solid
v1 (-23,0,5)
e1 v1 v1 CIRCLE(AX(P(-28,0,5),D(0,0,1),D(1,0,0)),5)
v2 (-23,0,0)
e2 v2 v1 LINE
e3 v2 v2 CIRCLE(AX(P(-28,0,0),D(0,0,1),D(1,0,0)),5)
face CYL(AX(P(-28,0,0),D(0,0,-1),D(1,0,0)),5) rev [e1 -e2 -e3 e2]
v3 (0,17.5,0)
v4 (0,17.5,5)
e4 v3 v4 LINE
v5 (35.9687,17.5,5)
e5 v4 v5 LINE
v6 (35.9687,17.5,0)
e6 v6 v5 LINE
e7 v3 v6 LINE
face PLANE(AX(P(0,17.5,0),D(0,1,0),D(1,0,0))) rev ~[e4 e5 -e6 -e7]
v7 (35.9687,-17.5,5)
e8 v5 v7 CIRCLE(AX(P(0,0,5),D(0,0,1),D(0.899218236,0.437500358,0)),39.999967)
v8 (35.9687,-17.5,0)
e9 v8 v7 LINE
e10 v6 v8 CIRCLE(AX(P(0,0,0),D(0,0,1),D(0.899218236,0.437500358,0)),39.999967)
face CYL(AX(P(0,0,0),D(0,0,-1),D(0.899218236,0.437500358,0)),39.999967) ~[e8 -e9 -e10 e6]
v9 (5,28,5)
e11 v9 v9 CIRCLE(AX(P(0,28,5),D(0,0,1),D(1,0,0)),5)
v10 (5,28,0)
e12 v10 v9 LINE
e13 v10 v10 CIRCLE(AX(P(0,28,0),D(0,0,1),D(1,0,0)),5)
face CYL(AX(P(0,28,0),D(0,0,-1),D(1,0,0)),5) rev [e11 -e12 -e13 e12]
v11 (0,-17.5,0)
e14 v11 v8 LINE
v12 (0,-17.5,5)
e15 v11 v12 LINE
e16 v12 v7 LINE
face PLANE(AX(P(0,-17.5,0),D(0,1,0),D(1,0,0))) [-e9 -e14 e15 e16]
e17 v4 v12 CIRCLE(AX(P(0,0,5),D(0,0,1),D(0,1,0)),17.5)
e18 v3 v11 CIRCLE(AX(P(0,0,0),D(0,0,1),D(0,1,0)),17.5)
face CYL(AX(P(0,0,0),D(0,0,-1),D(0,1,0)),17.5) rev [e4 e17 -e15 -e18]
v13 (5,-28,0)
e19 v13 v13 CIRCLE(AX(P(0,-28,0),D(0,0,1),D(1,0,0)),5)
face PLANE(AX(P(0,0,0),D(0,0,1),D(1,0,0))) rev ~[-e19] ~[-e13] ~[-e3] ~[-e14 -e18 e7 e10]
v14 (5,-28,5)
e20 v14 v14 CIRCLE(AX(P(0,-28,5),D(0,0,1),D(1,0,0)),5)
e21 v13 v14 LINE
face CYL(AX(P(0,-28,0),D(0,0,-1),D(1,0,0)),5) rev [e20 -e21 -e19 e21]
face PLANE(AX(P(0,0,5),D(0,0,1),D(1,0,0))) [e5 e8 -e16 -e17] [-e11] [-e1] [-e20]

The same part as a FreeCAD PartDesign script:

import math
import FreeCAD as App
import Part
import Sketcher

doc = App.newDocument("Part")
params = doc.addObject("Spreadsheet::Sheet", "Params")
for row, (alias, value) in enumerate([
    ("sketch1_diameter", "10 mm"),
    ("sketch1_radius", "40 mm"),
    ("sketch1_radius2", "17.5 mm"),
    ("pad1_length", "5 mm"),
], start=1):
    params.set(f"A{row}", alias)
    params.set(f"B{row}", "=" + value)
    params.setAlias(f"B{row}", alias)

body = doc.addObject("PartDesign::Body", "Body")

sketch1 = body.newObject("Sketcher::SketchObject", "Sketch")
sketch1.AttachmentSupport = (doc.getObject("XY_Plane"), [""])
sketch1.MapMode = "FlatFace"
sketch1.addGeometry([
    Part.ArcOfCircle(Part.Circle(App.Vector(0, 0, 0), App.Vector(0, 0, 1), 18), math.radians(90), math.radians(270)),
    Part.LineSegment(App.Vector(0, 18, 0), App.Vector(36, 18, 0)),
    Part.ArcOfCircle(Part.Circle(App.Vector(0, 0, 0), App.Vector(0, 0, 1), 40), math.radians(26), math.radians(334)),
    Part.LineSegment(App.Vector(36, -18, 0), App.Vector(0, -18, 0)),
    Part.Circle(App.Vector(0, -28, 0), App.Vector(0, 0, 1), 5),
    Part.Circle(App.Vector(-28, 0, 0), App.Vector(0, 0, 1), 5),
    Part.Circle(App.Vector(0, 28, 0), App.Vector(0, 0, 1), 5),
], False)
sketch1.addConstraint([
    Sketcher.Constraint("Tangent", 0, 1, 1, 1),
    Sketcher.Constraint("Coincident", 1, 2, 2, 1),
    Sketcher.Constraint("Coincident", 2, 2, 3, 1),
    Sketcher.Constraint("Tangent", 3, 2, 0, 2),
    Sketcher.Constraint("Horizontal", 1),
    Sketcher.Constraint("Horizontal", 3),
    Sketcher.Constraint("Coincident", 0, 3, -1, 1),
    Sketcher.Constraint("Coincident", 2, 3, -1, 1),
    Sketcher.Constraint("Equal", 4, 5),
    Sketcher.Constraint("Equal", 5, 6),
    Sketcher.Constraint("Symmetric", 4, 3, 6, 3, -1, 1),
    Sketcher.Constraint("PointOnObject", 4, 3, -2),
    Sketcher.Constraint("PointOnObject", 5, 3, -1),
    Sketcher.Constraint("Diameter", 4, 10.0),
    Sketcher.Constraint("Radius", 2, 40.0),
    Sketcher.Constraint("Radius", 0, 17.5),
    Sketcher.Constraint("DistanceY", 4, 3, -1, 1, 28.0),
    Sketcher.Constraint("DistanceX", 5, 3, -1, 1, 28.0),
])
sketch1.setExpression("Constraints[13]", "Params.sketch1_diameter")
sketch1.setExpression("Constraints[14]", "Params.sketch1_radius")
sketch1.setExpression("Constraints[15]", "Params.sketch1_radius2")
pad1 = body.newObject("PartDesign::Pad", "Pad")
pad1.Profile = sketch1
pad1.setExpression("Length", "Params.pad1_length")

doc.recompute()
